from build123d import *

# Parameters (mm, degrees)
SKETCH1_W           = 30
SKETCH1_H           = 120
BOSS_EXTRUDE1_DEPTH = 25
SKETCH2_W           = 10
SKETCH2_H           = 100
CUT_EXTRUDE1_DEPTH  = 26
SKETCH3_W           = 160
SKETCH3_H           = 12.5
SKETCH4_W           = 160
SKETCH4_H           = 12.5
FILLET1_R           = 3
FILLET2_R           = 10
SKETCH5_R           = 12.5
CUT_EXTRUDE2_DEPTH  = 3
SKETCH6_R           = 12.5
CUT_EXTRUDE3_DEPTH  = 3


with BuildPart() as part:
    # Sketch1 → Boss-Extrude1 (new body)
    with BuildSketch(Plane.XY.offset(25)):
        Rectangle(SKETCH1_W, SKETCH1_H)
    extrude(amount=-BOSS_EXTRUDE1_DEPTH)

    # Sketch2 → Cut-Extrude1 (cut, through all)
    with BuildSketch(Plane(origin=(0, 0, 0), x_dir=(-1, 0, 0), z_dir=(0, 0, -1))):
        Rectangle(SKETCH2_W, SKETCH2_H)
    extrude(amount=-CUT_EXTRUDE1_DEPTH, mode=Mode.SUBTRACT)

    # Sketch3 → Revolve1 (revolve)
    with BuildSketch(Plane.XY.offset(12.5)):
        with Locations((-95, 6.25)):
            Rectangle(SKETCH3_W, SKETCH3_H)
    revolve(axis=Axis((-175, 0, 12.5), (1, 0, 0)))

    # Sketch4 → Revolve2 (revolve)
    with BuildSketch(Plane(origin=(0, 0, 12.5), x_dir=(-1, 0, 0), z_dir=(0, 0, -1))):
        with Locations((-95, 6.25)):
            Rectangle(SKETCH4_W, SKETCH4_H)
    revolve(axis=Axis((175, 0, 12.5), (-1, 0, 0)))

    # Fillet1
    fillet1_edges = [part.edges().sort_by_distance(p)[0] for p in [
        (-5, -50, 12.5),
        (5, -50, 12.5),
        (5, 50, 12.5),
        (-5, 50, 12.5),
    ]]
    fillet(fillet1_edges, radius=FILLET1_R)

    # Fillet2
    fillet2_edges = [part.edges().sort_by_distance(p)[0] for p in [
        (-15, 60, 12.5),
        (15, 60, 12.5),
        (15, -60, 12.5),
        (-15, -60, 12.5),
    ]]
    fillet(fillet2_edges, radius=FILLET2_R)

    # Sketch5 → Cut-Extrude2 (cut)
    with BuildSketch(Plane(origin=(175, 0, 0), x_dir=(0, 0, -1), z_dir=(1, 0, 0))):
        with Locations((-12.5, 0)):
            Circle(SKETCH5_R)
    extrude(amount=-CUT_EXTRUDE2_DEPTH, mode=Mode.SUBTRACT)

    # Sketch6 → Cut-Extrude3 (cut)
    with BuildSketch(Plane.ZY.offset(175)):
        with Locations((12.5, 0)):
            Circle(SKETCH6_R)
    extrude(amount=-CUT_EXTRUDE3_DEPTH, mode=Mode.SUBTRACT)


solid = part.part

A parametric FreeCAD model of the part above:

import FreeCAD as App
import Part
import Sketcher
Q = App.Units.Quantity


def edges_at(feature, points):
    """Names of the edges that pass closest to the given points."""
    edges = feature.Shape.Edges
    near = lambda p: min(range(len(edges)), key=lambda i: edges[i].distToShape(Part.Vertex(*p))[0])
    return sorted({f"Edge{near(p) + 1}" for p in points})

doc = App.newDocument("Part")
body = doc.addObject("PartDesign::Body", "Body")

sketch1 = doc.addObject("Sketcher::SketchObject", "Sketch")
body.addObject(sketch1)
sketch1.AttachmentSupport = (doc.XY_Plane, [""])
sketch1.MapMode = "FlatFace"
sketch1.AttachmentOffset = App.Placement(App.Vector(0, 0, 25), App.Rotation())
sketch1.addGeometry([
    Part.LineSegment(App.Vector(-15, 60, 0), App.Vector(-15, -60, 0)),
    Part.LineSegment(App.Vector(-15, -60, 0), App.Vector(15, -60, 0)),
    Part.LineSegment(App.Vector(15, -60, 0), App.Vector(15, 60, 0)),
    Part.LineSegment(App.Vector(15, 60, 0), App.Vector(-15, 60, 0)),
], False)
sketch1.addConstraint([
    Sketcher.Constraint("Coincident", 0, 2, 1, 1),
    Sketcher.Constraint("Coincident", 1, 2, 2, 1),
    Sketcher.Constraint("Coincident", 2, 2, 3, 1),
    Sketcher.Constraint("Coincident", 3, 2, 0, 1),
    Sketcher.Constraint("Vertical", 0),
    Sketcher.Constraint("Horizontal", 1),
    Sketcher.Constraint("Vertical", 2),
    Sketcher.Constraint("Horizontal", 3),
    Sketcher.Constraint("Symmetric", 0, 2, 2, 2, -1, 1),
    Sketcher.Constraint("DistanceX", 1, 1, 1, 2, Q("30 mm")),
    Sketcher.Constraint("DistanceY", 0, 2, 0, 1, Q("120 mm")),
])
pad1 = doc.addObject("PartDesign::Pad", "Pad")
body.addObject(pad1)
pad1.Profile = sketch1
pad1.Length = 25
pad1.Reversed = True

sketch2 = doc.addObject("Sketcher::SketchObject", "Sketch001")
body.addObject(sketch2)
sketch2.AttachmentSupport = (doc.XY_Plane, [""])
sketch2.MapMode = "FlatFace"
sketch2.addGeometry([
    Part.LineSegment(App.Vector(5, 50, 0), App.Vector(5, -50, 0)),
    Part.LineSegment(App.Vector(5, -50, 0), App.Vector(-5, -50, 0)),
    Part.LineSegment(App.Vector(-5, -50, 0), App.Vector(-5, 50, 0)),
    Part.LineSegment(App.Vector(-5, 50, 0), App.Vector(5, 50, 0)),
], False)
sketch2.addConstraint([
    Sketcher.Constraint("Coincident", 0, 2, 1, 1),
    Sketcher.Constraint("Coincident", 1, 2, 2, 1),
    Sketcher.Constraint("Coincident", 2, 2, 3, 1),
    Sketcher.Constraint("Coincident", 3, 2, 0, 1),
    Sketcher.Constraint("Vertical", 0),
    Sketcher.Constraint("Horizontal", 1),
    Sketcher.Constraint("Vertical", 2),
    Sketcher.Constraint("Horizontal", 3),
    Sketcher.Constraint("Symmetric", 0, 2, 2, 2, -1, 1),
    Sketcher.Constraint("DistanceX", 1, 2, 1, 1, Q("10 mm")),
    Sketcher.Constraint("DistanceY", 0, 2, 0, 1, Q("100 mm")),
])
pocket1 = doc.addObject("PartDesign::Pocket", "Pocket")
body.addObject(pocket1)
pocket1.Profile = sketch2
pocket1.Type = "ThroughAll"
pocket1.Reversed = True

sketch3 = doc.addObject("Sketcher::SketchObject", "Sketch002")
body.addObject(sketch3)
sketch3.AttachmentSupport = (doc.XY_Plane, [""])
sketch3.MapMode = "FlatFace"
sketch3.AttachmentOffset = App.Placement(App.Vector(0, 0, 12.5), App.Rotation())
sketch3.addGeometry([
    Part.LineSegment(App.Vector(-175, 12.5, 0), App.Vector(-175, 0, 0)),
    Part.LineSegment(App.Vector(-175, 0, 0), App.Vector(-15, 0, 0)),
    Part.LineSegment(App.Vector(-15, 0, 0), App.Vector(-15, 12.5, 0)),
    Part.LineSegment(App.Vector(-15, 12.5, 0), App.Vector(-175, 12.5, 0)),
], False)
sketch3.addConstraint([
    Sketcher.Constraint("Coincident", 0, 2, 1, 1),
    Sketcher.Constraint("Coincident", 1, 2, 2, 1),
    Sketcher.Constraint("Coincident", 2, 2, 3, 1),
    Sketcher.Constraint("Coincident", 3, 2, 0, 1),
    Sketcher.Constraint("Vertical", 0),
    Sketcher.Constraint("Horizontal", 1),
    Sketcher.Constraint("Vertical", 2),
    Sketcher.Constraint("Horizontal", 3),
    Sketcher.Constraint("PointOnObject", 0, 2, -1),
    Sketcher.Constraint("DistanceX", 1, 1, 1, 2, Q("160 mm")),
    Sketcher.Constraint("DistanceY", 0, 2, 0, 1, Q("12.5 mm")),
    Sketcher.Constraint("DistanceX", 0, 2, -1, 1, Q("175 mm")),
])
revolution = doc.addObject("PartDesign::Revolution", "Revolution")
body.addObject(revolution)
revolution.Profile = sketch3
revolution.ReferenceAxis = (sketch3, ["H_Axis"])
revolution.Angle = 360

sketch4 = doc.addObject("Sketcher::SketchObject", "Sketch003")
body.addObject(sketch4)
sketch4.AttachmentSupport = (doc.XY_Plane, [""])
sketch4.MapMode = "FlatFace"
sketch4.AttachmentOffset = App.Placement(App.Vector(0, 0, 12.5), App.Rotation())
sketch4.addGeometry([
    Part.LineSegment(App.Vector(175, 12.5, 0), App.Vector(175, 0, 0)),
    Part.LineSegment(App.Vector(175, 0, 0), App.Vector(15, 0, 0)),
    Part.LineSegment(App.Vector(15, 0, 0), App.Vector(15, 12.5, 0)),
    Part.LineSegment(App.Vector(15, 12.5, 0), App.Vector(175, 12.5, 0)),
], False)
sketch4.addConstraint([
    Sketcher.Constraint("Coincident", 0, 2, 1, 1),
    Sketcher.Constraint("Coincident", 1, 2, 2, 1),
    Sketcher.Constraint("Coincident", 2, 2, 3, 1),
    Sketcher.Constraint("Coincident", 3, 2, 0, 1),
    Sketcher.Constraint("Vertical", 0),
    Sketcher.Constraint("Horizontal", 1),
    Sketcher.Constraint("Vertical", 2),
    Sketcher.Constraint("Horizontal", 3),
    Sketcher.Constraint("PointOnObject", 0, 2, -1),
    Sketcher.Constraint("DistanceX", 1, 2, 1, 1, Q("160 mm")),
    Sketcher.Constraint("DistanceY", 0, 2, 0, 1, Q("12.5 mm")),
    Sketcher.Constraint("DistanceX", -1, 1, 0, 2, Q("175 mm")),
])
revolution2 = doc.addObject("PartDesign::Revolution", "Revolution001")
body.addObject(revolution2)
revolution2.Profile = sketch4
revolution2.ReferenceAxis = (sketch4, ["H_Axis"])
revolution2.Angle = 360
doc.recompute()

fillet = doc.addObject("PartDesign::Fillet", "Fillet")
body.addObject(fillet)
fillet.Base = (revolution2, edges_at(revolution2, [
    (-5, -50, 12.5),
    (5, -50, 12.5),
    (5, 50, 12.5),
    (-5, 50, 12.5),
]))
fillet.Radius = 3
doc.recompute()

fillet2 = doc.addObject("PartDesign::Fillet", "Fillet001")
body.addObject(fillet2)
fillet2.Base = (fillet, edges_at(fillet, [
    (-15, 60, 12.5),
    (15, 60, 12.5),
    (15, -60, 12.5),
    (-15, -60, 12.5),
]))
fillet2.Radius = 10

sketch5 = doc.addObject("Sketcher::SketchObject", "Sketch004")
body.addObject(sketch5)
sketch5.AttachmentSupport = (doc.YZ_Plane, [""])
sketch5.MapMode = "FlatFace"
sketch5.AttachmentOffset = App.Placement(App.Vector(0, 0, 175), App.Rotation())
sketch5.addGeometry(Part.Circle(App.Vector(0, 12.5, 0), App.Vector(0, 0, 1), 12.5), False)
sketch5.addConstraint([
    Sketcher.Constraint("PointOnObject", 0, 3, -2),
    Sketcher.Constraint("Diameter", 0, Q("25 mm")),
    Sketcher.Constraint("DistanceY", -1, 1, 0, 3, Q("12.5 mm")),
])
pocket2 = doc.addObject("PartDesign::Pocket", "Pocket001")
body.addObject(pocket2)
pocket2.Profile = sketch5
pocket2.Length = 3

sketch6 = doc.addObject("Sketcher::SketchObject", "Sketch005")
body.addObject(sketch6)
sketch6.AttachmentSupport = (doc.YZ_Plane, [""])
sketch6.MapMode = "FlatFace"
sketch6.AttachmentOffset = App.Placement(App.Vector(0, 0, -175), App.Rotation())
sketch6.addGeometry(Part.Circle(App.Vector(0, 12.5, 0), App.Vector(0, 0, 1), 12.5), False)
sketch6.addConstraint([
    Sketcher.Constraint("PointOnObject", 0, 3, -2),
    Sketcher.Constraint("Diameter", 0, Q("25 mm")),
    Sketcher.Constraint("DistanceY", -1, 1, 0, 3, Q("12.5 mm")),
])
pocket3 = doc.addObject("PartDesign::Pocket", "Pocket002")
body.addObject(pocket3)
pocket3.Profile = sketch6
pocket3.Length = 3
pocket3.Reversed = True

doc.recompute()
